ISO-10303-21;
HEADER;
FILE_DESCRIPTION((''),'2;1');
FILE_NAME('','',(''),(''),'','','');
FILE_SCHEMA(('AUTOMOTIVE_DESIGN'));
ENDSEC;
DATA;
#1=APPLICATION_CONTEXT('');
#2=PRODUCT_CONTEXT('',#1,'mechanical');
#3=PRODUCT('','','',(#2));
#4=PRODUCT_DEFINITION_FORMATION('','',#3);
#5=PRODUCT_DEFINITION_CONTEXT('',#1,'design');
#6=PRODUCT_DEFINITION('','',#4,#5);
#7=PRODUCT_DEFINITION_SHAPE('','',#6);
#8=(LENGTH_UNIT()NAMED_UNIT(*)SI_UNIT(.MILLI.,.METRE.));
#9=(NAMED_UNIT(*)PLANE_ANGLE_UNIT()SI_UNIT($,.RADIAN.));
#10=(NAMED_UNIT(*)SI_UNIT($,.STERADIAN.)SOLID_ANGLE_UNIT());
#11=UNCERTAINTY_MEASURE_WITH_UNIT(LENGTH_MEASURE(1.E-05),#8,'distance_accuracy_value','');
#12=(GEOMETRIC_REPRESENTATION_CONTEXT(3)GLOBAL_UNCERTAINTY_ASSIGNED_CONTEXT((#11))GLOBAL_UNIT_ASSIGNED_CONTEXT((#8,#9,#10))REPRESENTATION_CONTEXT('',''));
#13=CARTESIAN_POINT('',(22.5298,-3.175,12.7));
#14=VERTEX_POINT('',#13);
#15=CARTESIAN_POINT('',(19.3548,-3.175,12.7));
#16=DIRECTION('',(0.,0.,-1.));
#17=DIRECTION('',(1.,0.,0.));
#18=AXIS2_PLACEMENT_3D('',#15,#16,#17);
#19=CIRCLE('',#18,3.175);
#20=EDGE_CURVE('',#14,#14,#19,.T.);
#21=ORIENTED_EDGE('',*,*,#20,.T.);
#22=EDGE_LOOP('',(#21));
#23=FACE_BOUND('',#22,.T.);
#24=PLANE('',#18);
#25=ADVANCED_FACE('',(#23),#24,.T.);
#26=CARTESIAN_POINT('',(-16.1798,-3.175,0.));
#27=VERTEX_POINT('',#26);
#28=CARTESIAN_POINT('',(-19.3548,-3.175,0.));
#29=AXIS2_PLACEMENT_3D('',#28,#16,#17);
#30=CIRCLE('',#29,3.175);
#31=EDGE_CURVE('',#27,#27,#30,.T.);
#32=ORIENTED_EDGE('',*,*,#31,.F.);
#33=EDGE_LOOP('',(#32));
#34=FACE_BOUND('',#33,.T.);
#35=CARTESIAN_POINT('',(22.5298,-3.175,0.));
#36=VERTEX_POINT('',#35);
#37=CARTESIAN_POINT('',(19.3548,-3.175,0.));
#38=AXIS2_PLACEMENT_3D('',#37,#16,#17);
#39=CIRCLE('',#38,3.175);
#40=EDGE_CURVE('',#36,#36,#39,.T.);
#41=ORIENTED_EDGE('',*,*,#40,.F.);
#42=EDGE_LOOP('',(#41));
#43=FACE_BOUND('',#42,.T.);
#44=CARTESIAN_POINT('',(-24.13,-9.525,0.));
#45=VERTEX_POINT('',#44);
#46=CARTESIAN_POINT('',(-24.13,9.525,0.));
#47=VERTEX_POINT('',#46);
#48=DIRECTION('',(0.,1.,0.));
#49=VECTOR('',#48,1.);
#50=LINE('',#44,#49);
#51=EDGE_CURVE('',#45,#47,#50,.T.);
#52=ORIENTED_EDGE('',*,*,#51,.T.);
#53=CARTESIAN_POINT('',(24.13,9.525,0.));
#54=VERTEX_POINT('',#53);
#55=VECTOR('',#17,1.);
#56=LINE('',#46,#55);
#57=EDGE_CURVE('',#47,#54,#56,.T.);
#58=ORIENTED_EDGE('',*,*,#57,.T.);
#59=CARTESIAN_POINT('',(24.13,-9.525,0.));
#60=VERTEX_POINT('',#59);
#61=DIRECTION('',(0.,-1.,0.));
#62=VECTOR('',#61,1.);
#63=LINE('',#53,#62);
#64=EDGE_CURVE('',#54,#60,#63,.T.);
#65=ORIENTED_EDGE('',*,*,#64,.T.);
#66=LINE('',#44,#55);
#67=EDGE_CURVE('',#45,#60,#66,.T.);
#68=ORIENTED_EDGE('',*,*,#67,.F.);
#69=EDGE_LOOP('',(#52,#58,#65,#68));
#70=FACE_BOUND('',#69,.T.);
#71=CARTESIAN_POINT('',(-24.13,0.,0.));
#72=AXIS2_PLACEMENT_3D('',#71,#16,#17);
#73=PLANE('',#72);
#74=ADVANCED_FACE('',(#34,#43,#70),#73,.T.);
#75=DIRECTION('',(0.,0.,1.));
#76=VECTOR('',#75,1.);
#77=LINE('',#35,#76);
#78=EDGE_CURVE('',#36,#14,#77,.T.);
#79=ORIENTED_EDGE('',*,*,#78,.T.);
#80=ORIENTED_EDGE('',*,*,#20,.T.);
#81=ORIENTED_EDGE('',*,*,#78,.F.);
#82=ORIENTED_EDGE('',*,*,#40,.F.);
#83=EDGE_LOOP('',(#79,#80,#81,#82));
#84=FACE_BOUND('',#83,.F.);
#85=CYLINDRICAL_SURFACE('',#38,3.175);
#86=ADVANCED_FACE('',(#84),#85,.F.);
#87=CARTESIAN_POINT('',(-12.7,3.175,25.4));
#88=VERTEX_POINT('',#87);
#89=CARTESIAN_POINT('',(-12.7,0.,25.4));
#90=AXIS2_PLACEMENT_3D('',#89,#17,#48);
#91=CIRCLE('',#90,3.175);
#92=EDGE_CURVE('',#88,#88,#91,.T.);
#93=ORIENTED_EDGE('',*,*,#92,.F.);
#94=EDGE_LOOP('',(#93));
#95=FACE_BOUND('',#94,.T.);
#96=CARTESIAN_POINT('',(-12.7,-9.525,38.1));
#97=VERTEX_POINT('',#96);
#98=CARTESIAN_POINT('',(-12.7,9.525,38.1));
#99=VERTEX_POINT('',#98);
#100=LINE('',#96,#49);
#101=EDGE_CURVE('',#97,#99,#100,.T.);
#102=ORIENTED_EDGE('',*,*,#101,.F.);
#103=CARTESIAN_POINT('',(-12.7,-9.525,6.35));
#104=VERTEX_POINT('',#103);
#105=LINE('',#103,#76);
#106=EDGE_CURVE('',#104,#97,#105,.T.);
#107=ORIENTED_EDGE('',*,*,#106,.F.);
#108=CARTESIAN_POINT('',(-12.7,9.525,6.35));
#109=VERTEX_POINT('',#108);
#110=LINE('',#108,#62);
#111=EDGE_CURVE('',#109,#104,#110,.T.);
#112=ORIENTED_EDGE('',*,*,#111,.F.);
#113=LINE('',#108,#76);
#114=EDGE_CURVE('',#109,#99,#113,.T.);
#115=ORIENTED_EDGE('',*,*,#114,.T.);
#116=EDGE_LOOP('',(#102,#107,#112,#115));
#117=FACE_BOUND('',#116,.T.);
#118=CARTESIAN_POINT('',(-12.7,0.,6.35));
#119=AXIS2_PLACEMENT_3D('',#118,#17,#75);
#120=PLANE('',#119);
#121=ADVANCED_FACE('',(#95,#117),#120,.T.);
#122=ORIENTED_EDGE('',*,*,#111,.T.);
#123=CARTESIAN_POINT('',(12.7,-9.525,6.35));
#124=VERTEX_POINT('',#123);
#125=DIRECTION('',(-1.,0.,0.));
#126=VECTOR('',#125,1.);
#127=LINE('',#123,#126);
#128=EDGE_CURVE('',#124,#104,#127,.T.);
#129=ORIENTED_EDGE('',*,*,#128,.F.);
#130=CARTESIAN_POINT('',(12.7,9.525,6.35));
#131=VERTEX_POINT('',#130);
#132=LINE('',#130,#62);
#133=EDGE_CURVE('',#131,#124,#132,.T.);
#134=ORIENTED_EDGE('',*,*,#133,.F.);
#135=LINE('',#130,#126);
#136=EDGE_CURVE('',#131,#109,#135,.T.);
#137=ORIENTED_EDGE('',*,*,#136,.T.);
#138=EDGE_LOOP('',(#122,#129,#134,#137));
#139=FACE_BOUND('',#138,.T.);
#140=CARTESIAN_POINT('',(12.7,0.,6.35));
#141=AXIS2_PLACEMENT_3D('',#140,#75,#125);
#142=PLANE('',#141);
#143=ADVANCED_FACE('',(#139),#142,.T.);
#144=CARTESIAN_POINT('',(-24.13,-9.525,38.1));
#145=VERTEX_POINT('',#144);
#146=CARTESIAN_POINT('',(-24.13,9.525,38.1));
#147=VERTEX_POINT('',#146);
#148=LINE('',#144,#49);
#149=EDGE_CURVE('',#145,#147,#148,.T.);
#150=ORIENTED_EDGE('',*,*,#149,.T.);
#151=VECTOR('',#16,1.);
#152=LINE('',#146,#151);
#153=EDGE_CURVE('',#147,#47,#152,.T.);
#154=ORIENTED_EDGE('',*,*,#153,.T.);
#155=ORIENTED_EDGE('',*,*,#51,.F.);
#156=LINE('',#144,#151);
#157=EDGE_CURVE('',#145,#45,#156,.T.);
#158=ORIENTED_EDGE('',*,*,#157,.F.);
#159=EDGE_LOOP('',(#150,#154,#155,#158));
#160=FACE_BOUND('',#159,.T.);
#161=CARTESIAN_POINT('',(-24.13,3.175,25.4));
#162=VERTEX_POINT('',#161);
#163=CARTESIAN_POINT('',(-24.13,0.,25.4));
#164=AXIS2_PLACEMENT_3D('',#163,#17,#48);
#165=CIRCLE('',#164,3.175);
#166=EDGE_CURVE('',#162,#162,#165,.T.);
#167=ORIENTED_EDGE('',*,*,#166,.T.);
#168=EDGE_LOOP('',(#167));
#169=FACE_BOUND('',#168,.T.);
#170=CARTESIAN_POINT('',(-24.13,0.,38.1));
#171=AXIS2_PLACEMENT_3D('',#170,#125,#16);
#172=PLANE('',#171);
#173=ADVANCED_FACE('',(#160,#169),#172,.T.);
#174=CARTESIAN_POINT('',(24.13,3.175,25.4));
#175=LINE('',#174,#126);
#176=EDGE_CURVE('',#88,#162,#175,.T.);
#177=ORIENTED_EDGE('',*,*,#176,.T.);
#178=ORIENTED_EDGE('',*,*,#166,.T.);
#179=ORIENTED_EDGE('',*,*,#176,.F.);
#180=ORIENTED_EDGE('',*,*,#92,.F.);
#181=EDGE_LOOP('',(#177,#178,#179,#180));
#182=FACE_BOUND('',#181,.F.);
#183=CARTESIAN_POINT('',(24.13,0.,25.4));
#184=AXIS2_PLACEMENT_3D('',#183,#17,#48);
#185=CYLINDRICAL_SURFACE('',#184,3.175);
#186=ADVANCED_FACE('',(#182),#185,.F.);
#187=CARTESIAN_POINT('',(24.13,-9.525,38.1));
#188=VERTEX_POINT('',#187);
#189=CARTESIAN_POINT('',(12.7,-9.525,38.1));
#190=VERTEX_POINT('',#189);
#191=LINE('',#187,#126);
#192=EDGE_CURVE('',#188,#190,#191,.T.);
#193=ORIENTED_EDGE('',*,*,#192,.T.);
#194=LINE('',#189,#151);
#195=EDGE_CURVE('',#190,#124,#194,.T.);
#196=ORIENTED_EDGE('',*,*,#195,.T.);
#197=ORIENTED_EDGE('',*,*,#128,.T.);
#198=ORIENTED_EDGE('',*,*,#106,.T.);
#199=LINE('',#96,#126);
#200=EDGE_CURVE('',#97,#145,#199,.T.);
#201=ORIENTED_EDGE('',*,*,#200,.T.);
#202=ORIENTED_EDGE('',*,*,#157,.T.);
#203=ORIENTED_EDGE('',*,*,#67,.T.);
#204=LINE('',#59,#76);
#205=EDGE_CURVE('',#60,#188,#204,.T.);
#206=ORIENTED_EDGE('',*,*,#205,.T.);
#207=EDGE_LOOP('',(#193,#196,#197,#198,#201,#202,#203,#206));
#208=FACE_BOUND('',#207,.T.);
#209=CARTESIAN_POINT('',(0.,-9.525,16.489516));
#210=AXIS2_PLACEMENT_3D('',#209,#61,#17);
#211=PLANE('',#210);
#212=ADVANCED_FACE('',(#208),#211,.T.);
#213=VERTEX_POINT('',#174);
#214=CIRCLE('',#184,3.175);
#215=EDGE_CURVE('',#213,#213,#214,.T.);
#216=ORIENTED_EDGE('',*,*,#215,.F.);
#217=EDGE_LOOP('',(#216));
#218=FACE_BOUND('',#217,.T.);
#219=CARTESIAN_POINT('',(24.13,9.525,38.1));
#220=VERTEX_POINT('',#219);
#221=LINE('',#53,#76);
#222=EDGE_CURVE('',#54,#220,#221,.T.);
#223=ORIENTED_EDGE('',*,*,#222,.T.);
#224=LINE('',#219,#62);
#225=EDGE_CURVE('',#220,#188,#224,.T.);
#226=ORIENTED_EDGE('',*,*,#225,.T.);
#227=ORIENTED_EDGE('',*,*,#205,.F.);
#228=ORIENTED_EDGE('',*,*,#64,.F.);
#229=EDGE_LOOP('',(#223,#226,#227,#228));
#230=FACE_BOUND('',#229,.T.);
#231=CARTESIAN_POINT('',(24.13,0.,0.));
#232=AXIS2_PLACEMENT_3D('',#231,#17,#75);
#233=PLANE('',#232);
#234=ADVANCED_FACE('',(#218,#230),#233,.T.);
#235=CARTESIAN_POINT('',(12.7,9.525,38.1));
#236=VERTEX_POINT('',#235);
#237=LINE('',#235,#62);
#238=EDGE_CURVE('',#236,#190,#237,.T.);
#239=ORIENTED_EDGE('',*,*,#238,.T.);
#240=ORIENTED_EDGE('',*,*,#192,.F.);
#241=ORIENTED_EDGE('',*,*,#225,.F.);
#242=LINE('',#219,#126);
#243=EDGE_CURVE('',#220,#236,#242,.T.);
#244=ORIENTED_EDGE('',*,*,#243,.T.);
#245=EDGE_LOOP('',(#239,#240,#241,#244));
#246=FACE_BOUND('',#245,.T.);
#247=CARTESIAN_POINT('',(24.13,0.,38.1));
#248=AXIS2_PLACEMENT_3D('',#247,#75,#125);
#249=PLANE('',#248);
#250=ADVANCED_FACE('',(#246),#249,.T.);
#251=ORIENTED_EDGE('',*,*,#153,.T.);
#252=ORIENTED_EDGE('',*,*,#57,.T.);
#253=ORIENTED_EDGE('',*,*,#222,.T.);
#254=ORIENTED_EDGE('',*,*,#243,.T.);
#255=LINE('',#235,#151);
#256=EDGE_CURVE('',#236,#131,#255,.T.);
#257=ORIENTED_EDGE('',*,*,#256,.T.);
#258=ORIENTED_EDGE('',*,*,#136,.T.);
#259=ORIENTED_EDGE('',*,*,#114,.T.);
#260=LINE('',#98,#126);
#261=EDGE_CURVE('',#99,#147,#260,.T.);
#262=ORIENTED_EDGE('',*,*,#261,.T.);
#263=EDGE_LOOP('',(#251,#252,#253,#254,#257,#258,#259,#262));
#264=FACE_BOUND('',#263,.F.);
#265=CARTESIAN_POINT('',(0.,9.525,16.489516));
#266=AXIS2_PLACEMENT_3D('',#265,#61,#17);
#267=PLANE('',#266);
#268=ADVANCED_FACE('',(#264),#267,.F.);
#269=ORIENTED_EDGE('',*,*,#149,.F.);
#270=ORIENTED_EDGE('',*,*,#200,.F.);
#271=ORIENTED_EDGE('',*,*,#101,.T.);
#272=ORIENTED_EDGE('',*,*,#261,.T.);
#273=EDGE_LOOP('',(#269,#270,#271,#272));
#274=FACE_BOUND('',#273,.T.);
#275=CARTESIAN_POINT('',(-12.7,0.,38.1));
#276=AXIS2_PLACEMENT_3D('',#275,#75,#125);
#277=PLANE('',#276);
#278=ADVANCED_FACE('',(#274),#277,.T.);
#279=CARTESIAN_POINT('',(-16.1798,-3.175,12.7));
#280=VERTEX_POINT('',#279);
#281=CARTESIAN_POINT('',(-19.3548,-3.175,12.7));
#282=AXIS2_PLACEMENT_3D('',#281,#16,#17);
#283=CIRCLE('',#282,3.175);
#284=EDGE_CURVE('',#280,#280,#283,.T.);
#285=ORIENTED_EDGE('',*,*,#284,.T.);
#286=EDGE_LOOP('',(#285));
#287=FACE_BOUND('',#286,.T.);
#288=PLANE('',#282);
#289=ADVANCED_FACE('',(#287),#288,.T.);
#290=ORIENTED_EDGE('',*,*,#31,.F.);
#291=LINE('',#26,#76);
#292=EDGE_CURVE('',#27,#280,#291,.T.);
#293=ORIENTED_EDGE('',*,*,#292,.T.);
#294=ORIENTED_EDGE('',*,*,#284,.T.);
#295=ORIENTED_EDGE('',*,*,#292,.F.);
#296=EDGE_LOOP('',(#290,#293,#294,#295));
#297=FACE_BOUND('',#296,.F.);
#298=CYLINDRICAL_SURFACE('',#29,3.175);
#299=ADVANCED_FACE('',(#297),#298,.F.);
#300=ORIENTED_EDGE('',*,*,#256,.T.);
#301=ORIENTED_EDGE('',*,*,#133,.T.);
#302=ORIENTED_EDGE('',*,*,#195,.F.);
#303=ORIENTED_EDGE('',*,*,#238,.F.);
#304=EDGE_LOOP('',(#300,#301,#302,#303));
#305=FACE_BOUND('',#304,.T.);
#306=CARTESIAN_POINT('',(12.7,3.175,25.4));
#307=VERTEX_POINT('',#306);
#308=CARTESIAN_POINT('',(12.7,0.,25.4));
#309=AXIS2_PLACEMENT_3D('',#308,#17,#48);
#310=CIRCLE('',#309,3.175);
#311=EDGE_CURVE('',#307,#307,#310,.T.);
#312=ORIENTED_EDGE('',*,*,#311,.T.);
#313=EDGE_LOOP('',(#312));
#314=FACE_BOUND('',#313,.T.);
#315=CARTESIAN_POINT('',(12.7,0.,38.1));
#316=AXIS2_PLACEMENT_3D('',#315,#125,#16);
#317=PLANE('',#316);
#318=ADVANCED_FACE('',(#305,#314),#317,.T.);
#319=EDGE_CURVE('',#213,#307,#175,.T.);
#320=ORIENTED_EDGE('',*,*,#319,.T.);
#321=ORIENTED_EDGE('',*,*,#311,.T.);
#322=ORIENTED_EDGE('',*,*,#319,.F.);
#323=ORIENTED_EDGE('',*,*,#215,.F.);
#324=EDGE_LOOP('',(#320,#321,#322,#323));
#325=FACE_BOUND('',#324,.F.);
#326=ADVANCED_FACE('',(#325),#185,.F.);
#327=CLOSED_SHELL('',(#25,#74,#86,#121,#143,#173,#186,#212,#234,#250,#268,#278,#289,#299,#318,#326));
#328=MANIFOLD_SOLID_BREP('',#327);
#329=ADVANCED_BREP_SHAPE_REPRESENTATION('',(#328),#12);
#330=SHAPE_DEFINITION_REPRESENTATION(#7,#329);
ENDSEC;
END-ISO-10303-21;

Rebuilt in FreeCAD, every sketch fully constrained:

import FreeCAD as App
import Part
import Sketcher
Q = App.Units.Quantity


def add_polygon(sketch, points):
    """Adds a closed chain of lines whose ends are joined by coincident constraints."""
    first, n = sketch.GeometryCount, len(points)
    for a, b in zip(points, points[1:] + points[:1]):
        sketch.addGeometry(Part.LineSegment(App.Vector(*a, 0), App.Vector(*b, 0)), False)
    for i in range(n):
        sketch.addConstraint(Sketcher.Constraint("Coincident", first + i, 2, first + (i + 1) % n, 1))

doc = App.newDocument("Part")
params = doc.addObject("Spreadsheet::Sheet", "Params")
for row, (alias, value) in enumerate([
    ("sketch1_width", "1 in"),
    ("sketch1_width2", "1.9 in"),
    ("sketch1_height", "1.5 in"),
    ("sketch1_height2", "1.25 in"),
    ("pad1_length", "0.75 in"),
    ("sketch2_diameter", "0.25 in"),
    ("pocket1_length", "2.33 in"),
    ("sketch3_diameter", "0.25 in"),
    ("pocket2_length", "0.5 in"),
], start=1):
    params.set(f"A{row}", alias)
    params.set(f"B{row}", "=" + value)
    params.setAlias(f"B{row}", alias)

body = doc.addObject("PartDesign::Body", "Body")

# Sketch on XZ plane
sketch1 = body.newObject("Sketcher::SketchObject", "Sketch")
sketch1.AttachmentSupport = (doc.getObject("XZ_Plane"), [""])
sketch1.MapMode = "FlatFace"
add_polygon(sketch1, [(-24, 0), (24, 0), (24, 38), (13, 38), (13, 6), (-13, 6), (-13, 38), (-24, 38)])  # lines 0-7
sketch1.addConstraint([
    Sketcher.Constraint("Horizontal", 0),
    Sketcher.Constraint("Vertical", 1),
    Sketcher.Constraint("Horizontal", 2),
    Sketcher.Constraint("Vertical", 3),
    Sketcher.Constraint("Horizontal", 4),
    Sketcher.Constraint("Vertical", 5),
    Sketcher.Constraint("Horizontal", 6),
    Sketcher.Constraint("Vertical", 7),
    Sketcher.Constraint("Symmetric", 0, 2, 7, 2, -1, 1),
    Sketcher.Constraint("Symmetric", 2, 2, 5, 2, -2),
    Sketcher.Constraint("DistanceX", 4, 2, 4, 1, Q("1 in")),
    Sketcher.Constraint("DistanceX", 0, 1, 0, 2, Q("1.9 in")),
    Sketcher.Constraint("DistanceY", 1, 1, 1, 2, Q("1.5 in")),
    Sketcher.Constraint("DistanceY", 3, 2, 3, 1, Q("1.25 in")),
])
sketch1.setExpression("Constraints[18]", "Params.sketch1_width")
sketch1.setExpression("Constraints[19]", "Params.sketch1_width2")
sketch1.setExpression("Constraints[20]", "Params.sketch1_height")
sketch1.setExpression("Constraints[21]", "Params.sketch1_height2")
pad1 = body.newObject("PartDesign::Pad", "Pad")
pad1.Profile = sketch1
pad1.setExpression("Length", "Params.pad1_length")
pad1.Midplane = True

# Sketch on YZ plane
sketch2 = body.newObject("Sketcher::SketchObject", "Sketch001")
sketch2.AttachmentSupport = (doc.getObject("YZ_Plane"), [""])
sketch2.MapMode = "FlatFace"
sketch2.AttachmentOffset = App.Placement(App.Vector(0, 0, 0.95 * 25.4), App.Rotation())
sketch2.addGeometry(Part.Circle(App.Vector(0, 25.4, 0), App.Vector(0, 0, 1), 3.2), False)
sketch2.addConstraint([
    Sketcher.Constraint("PointOnObject", 0, 3, -2),
    Sketcher.Constraint("Diameter", 0, Q("0.25 in")),
    Sketcher.Constraint("DistanceY", -1, 1, 0, 3, Q("1 in")),
])
sketch2.setExpression("Constraints[1]", "Params.sketch2_diameter")
pocket1 = body.newObject("PartDesign::Pocket", "Pocket")
pocket1.Profile = sketch2
pocket1.setExpression("Length", "Params.pocket1_length")

# Sketch on XY plane
sketch3 = body.newObject("Sketcher::SketchObject", "Sketch002")
sketch3.AttachmentSupport = (doc.getObject("XY_Plane"), [""])
sketch3.MapMode = "FlatFace"
sketch3.addGeometry([
    Part.Circle(App.Vector(-19.4, -3.2, 0), App.Vector(0, 0, 1), 3.2),
    Part.Circle(App.Vector(19.4, -3.2, 0), App.Vector(0, 0, 1), 3.2),
], False)
sketch3.addConstraint([
    Sketcher.Constraint("Equal", 0, 1),
    Sketcher.Constraint("Symmetric", 0, 3, 1, 3, -2),
    Sketcher.Constraint("Diameter", 0, Q("0.25 in")),
    Sketcher.Constraint("DistanceX", 0, 3, -1, 1, Q("0.762 in")),
    Sketcher.Constraint("DistanceY", 0, 3, -1, 1, Q("0.125 in")),
])
sketch3.setExpression("Constraints[2]", "Params.sketch3_diameter")
pocket2 = body.newObject("PartDesign::Pocket", "Pocket001")
pocket2.Profile = sketch3
pocket2.setExpression("Length", "Params.pocket2_length")
pocket2.Reversed = True

doc.recompute()
